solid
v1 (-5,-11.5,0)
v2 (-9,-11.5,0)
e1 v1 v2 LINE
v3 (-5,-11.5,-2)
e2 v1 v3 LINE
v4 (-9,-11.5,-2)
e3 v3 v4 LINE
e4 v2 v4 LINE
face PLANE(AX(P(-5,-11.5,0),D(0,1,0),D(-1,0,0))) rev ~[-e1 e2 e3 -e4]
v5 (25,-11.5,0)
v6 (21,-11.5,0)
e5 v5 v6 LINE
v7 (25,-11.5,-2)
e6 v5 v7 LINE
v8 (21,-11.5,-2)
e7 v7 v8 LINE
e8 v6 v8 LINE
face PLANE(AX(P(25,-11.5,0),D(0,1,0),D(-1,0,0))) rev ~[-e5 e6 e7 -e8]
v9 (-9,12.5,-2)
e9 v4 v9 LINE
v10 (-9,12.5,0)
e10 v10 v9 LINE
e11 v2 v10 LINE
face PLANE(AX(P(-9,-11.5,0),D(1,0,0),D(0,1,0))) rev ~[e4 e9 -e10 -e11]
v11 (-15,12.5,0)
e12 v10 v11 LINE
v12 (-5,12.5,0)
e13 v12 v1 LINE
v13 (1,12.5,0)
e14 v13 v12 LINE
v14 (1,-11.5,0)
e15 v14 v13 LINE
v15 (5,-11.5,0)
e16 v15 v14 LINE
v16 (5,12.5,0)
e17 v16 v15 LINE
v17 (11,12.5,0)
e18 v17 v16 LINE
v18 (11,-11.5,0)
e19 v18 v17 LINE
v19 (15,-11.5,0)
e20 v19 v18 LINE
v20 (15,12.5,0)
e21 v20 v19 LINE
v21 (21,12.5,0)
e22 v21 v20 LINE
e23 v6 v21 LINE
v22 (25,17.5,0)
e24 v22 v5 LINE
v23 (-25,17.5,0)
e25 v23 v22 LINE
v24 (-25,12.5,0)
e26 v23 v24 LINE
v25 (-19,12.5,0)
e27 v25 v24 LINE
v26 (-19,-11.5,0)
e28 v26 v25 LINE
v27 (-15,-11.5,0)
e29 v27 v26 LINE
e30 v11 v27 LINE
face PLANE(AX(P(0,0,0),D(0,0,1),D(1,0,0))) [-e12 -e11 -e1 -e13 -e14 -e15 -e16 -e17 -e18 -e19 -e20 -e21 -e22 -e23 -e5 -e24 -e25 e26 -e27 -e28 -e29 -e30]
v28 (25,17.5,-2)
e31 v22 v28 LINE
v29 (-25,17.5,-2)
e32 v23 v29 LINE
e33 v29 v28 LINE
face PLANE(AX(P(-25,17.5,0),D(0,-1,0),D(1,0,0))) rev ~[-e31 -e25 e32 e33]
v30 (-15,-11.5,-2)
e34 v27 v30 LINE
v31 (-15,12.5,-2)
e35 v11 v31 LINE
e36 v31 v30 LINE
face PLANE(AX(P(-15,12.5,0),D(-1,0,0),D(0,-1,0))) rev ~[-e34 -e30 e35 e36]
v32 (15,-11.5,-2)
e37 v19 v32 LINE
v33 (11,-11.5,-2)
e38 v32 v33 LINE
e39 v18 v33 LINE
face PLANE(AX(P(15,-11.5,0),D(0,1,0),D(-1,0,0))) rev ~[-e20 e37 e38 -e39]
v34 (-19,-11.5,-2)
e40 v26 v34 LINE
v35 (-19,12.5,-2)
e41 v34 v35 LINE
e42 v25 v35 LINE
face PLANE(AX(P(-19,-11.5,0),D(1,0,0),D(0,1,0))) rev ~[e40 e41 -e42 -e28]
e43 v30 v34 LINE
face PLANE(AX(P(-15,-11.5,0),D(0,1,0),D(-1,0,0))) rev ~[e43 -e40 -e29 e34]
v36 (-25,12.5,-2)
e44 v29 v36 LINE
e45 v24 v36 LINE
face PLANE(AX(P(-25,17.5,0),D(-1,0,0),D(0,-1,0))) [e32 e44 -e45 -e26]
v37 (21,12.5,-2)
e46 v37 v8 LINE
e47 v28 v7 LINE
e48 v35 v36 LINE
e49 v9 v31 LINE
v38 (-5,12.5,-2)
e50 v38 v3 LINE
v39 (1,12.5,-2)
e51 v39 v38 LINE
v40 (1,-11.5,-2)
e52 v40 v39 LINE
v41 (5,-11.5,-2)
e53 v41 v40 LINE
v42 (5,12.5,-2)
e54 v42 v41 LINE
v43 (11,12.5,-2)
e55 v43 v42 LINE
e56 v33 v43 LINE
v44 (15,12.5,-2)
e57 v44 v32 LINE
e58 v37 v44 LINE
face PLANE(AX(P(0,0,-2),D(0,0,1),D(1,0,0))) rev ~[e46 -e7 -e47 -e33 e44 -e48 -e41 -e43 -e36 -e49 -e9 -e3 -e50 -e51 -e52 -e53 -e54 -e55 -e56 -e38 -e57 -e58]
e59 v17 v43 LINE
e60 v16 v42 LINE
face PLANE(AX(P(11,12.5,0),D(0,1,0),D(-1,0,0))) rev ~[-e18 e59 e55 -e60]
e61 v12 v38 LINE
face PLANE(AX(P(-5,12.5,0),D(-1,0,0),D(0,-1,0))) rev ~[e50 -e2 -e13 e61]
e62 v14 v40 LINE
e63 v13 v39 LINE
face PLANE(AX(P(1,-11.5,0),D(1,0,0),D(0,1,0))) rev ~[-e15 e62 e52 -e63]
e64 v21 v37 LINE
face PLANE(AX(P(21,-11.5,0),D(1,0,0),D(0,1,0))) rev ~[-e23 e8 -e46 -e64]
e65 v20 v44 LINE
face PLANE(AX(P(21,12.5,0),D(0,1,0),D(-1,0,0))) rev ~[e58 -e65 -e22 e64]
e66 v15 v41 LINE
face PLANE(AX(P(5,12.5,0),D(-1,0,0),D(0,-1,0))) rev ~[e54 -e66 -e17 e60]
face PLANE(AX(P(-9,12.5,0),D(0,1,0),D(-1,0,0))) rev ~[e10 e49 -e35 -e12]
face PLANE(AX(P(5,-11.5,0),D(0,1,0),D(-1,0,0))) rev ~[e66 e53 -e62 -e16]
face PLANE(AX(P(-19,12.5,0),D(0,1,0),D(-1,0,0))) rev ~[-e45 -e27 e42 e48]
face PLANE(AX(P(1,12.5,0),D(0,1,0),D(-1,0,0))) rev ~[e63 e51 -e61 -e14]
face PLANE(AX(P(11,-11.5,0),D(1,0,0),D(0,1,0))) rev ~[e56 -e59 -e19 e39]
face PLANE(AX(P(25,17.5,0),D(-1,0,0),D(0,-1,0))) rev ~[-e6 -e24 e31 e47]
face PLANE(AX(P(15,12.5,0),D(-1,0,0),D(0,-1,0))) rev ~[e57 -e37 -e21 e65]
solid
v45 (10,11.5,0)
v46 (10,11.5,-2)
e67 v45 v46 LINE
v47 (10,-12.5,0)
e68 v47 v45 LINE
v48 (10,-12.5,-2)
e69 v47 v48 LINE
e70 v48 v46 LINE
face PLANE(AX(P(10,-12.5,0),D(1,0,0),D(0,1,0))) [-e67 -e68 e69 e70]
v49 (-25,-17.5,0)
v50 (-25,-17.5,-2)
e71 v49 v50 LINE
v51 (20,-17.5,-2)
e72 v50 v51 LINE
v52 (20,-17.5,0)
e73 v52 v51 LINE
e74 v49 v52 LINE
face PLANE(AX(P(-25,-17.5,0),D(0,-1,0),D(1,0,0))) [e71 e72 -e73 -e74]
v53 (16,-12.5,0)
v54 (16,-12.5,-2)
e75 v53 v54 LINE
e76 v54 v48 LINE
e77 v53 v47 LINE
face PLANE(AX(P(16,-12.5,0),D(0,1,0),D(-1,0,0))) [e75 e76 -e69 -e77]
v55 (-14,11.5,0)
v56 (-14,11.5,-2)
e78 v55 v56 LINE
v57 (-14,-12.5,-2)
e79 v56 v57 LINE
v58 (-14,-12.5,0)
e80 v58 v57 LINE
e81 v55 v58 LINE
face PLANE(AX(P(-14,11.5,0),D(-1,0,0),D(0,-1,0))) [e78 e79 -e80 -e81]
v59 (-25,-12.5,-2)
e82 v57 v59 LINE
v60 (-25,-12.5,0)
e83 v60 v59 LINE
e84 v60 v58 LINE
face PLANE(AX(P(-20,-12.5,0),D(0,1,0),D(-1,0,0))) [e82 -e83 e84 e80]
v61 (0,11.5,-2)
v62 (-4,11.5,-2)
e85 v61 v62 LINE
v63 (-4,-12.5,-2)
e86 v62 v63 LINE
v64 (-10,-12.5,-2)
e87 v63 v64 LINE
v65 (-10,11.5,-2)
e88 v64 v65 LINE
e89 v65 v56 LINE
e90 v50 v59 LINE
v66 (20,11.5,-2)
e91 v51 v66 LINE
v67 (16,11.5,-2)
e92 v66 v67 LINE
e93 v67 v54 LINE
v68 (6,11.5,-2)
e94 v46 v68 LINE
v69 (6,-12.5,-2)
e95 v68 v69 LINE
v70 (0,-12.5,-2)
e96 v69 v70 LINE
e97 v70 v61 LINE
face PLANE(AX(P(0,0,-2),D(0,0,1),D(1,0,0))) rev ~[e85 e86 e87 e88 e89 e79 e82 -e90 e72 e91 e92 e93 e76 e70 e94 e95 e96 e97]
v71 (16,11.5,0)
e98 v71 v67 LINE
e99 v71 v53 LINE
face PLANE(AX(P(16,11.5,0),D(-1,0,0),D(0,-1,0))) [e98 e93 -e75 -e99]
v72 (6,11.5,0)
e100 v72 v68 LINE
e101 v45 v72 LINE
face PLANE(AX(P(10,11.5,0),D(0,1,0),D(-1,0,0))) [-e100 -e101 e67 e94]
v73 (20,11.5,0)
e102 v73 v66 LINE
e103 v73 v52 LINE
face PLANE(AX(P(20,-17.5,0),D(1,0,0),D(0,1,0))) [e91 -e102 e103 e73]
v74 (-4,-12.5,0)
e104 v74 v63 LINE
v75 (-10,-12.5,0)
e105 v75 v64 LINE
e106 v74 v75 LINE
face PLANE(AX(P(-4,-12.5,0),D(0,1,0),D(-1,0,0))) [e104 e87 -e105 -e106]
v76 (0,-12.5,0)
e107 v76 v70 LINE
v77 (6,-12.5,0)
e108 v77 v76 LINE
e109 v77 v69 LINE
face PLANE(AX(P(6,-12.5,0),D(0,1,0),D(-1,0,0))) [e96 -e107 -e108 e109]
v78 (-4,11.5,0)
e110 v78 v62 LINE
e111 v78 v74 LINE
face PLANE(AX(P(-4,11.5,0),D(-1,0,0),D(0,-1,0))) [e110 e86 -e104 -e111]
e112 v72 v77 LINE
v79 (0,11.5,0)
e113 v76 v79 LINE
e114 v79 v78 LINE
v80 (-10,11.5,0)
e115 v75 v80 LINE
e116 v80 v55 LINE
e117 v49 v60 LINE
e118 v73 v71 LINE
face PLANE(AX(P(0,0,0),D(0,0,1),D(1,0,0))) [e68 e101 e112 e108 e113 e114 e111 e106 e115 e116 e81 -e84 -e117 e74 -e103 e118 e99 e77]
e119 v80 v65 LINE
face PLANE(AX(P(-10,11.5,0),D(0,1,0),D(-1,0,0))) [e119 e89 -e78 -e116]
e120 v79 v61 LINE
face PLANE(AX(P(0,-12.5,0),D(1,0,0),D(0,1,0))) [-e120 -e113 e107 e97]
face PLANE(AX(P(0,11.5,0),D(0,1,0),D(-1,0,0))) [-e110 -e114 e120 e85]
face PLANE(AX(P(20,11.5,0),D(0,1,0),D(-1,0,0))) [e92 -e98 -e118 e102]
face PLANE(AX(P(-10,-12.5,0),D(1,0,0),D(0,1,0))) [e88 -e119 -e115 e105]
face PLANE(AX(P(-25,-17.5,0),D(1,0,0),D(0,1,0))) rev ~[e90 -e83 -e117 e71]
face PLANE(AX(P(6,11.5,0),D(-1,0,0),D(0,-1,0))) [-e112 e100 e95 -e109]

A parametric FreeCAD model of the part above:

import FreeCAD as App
import Part
import Sketcher

V = App.Vector


def add_polygon(sketch, points):
    """Adds a closed chain of lines whose ends are joined by coincident constraints."""
    first, n = sketch.GeometryCount, len(points)
    for a, b in zip(points, points[1:] + points[:1]):
        sketch.addGeometry(Part.LineSegment(App.Vector(*a, 0), App.Vector(*b, 0)), False)
    for i in range(n):
        sketch.addConstraint(Sketcher.Constraint("Coincident", first + i, 2, first + (i + 1) % n, 1))

doc = App.newDocument("Part")
body = doc.addObject("PartDesign::Body", "Body")
body.AllowCompound = True

# Sketch on XY plane
sketch1 = body.newObject("Sketcher::SketchObject", "Sketch")
sketch1.AttachmentSupport = (doc.getObject("XY_Plane"), [""])
sketch1.MapMode = "FlatFace"
add_polygon(sketch1, [(20, -17.5), (20, 11.5), (16, 11.5), (16, -12.5), (10, -12.5), (10, 11.5), (6, 11.5), (6, -12.5), (0, -12.5), (0, 11.5), (-4, 11.5), (-4, -12.5), (-10, -12.5), (-10, 11.5), (-14, 11.5), (-14, -12.5), (-25, -12.5), (-25, -17.5)])  # lines 0-17
add_polygon(sketch1, [(25, 17.5), (-25, 17.5), (-25, 12.5), (-19, 12.5), (-19, -11.5), (-15, -11.5), (-15, 12.5), (-9, 12.5), (-9, -11.5), (-5, -11.5), (-5, 12.5), (1, 12.5), (1, -11.5), (5, -11.5), (5, 12.5), (11, 12.5), (11, -11.5), (15, -11.5), (15, 12.5), (21, 12.5), (21, -11.5), (25, -11.5)])  # lines 18-39
sketch1.addConstraint([
    Sketcher.Constraint("Vertical", 0),
    Sketcher.Constraint("Horizontal", 1),
    Sketcher.Constraint("Vertical", 2),
    Sketcher.Constraint("Horizontal", 3),
    Sketcher.Constraint("Vertical", 4),
    Sketcher.Constraint("Horizontal", 5),
    Sketcher.Constraint("Vertical", 6),
    Sketcher.Constraint("Horizontal", 7),
    Sketcher.Constraint("Vertical", 8),
    Sketcher.Constraint("Horizontal", 9),
    Sketcher.Constraint("Vertical", 10),
    Sketcher.Constraint("Horizontal", 11),
    Sketcher.Constraint("Vertical", 12),
    Sketcher.Constraint("Horizontal", 13),
    Sketcher.Constraint("Vertical", 14),
    Sketcher.Constraint("Horizontal", 15),
    Sketcher.Constraint("Vertical", 16),
    Sketcher.Constraint("Horizontal", 17),
    Sketcher.Constraint("Horizontal", 18),
    Sketcher.Constraint("Vertical", 19),
    Sketcher.Constraint("Horizontal", 20),
    Sketcher.Constraint("Vertical", 21),
    Sketcher.Constraint("Horizontal", 22),
    Sketcher.Constraint("Vertical", 23),
    Sketcher.Constraint("Horizontal", 24),
    Sketcher.Constraint("Vertical", 25),
    Sketcher.Constraint("Horizontal", 26),
    Sketcher.Constraint("Vertical", 27),
    Sketcher.Constraint("Horizontal", 28),
    Sketcher.Constraint("Vertical", 29),
    Sketcher.Constraint("Horizontal", 30),
    Sketcher.Constraint("Vertical", 31),
    Sketcher.Constraint("Horizontal", 32),
    Sketcher.Constraint("Vertical", 33),
    Sketcher.Constraint("Horizontal", 34),
    Sketcher.Constraint("Vertical", 35),
    Sketcher.Constraint("Horizontal", 36),
    Sketcher.Constraint("Vertical", 37),
    Sketcher.Constraint("Horizontal", 38),
    Sketcher.Constraint("Vertical", 39),
    Sketcher.Constraint("Symmetric", 16, 2, 39, 2, -1, 1),
    Sketcher.Constraint("Symmetric", 3, 2, 11, 2, -2),
    Sketcher.Constraint("Symmetric", 26, 2, 30, 2, -2),
    Sketcher.Constraint("Symmetric", 22, 2, 34, 2, -2),
    Sketcher.Constraint("Symmetric", 15, 2, 19, 2, -1),
    Sketcher.Constraint("PointOnObject", 7, 2, -2),
    Sketcher.Constraint("Horizontal", 1, 2, 4, 2),
    Sketcher.Constraint("Horizontal", 3, 2, 6, 2),
    Sketcher.Constraint("Horizontal", 5, 2, 8, 2),
    Sketcher.Constraint("Horizontal", 9, 2, 12, 2),
    Sketcher.Constraint("Horizontal", 11, 2, 14, 2),
    Sketcher.Constraint("Horizontal", 20, 2, 23, 2),
    Sketcher.Constraint("Horizontal", 22, 2, 25, 2),
    Sketcher.Constraint("Horizontal", 24, 2, 27, 2),
    Sketcher.Constraint("Horizontal", 28, 2, 31, 2),
    Sketcher.Constraint("Horizontal", 32, 2, 35, 2),
    Sketcher.Constraint("Horizontal", 34, 2, 37, 2),
    Sketcher.Constraint("Equal", 1, 5),
    Sketcher.Constraint("Equal", 3, 7),
    Sketcher.Constraint("Equal", 5, 9),
    Sketcher.Constraint("Equal", 9, 13),
    Sketcher.Constraint("Equal", 11, 20),
    Sketcher.Constraint("Equal", 13, 22),
    Sketcher.Constraint("Equal", 20, 24),
    Sketcher.Constraint("Equal", 22, 26),
    Sketcher.Constraint("Equal", 24, 28),
    Sketcher.Constraint("Equal", 26, 30),
    Sketcher.Constraint("Equal", 28, 32),
    Sketcher.Constraint("Equal", 32, 36),
    Sketcher.Constraint("Equal", 14, 21),
    Sketcher.Constraint("DistanceX", 1, 2, 1, 1, 4.0),
    Sketcher.Constraint("DistanceX", 3, 2, 3, 1, 6.0),
    Sketcher.Constraint("DistanceY", 0, 1, 0, 2, 29.0),
    Sketcher.Constraint("DistanceY", 2, 2, 2, 1, 24.0),
    Sketcher.Constraint("DistanceY", 13, 2, 18, 2, 6.0),
])
pad1 = body.newObject("PartDesign::Pad", "Pad")
pad1.Profile = sketch1
pad1.Length = 2
pad1.Reversed = True

doc.recompute()
